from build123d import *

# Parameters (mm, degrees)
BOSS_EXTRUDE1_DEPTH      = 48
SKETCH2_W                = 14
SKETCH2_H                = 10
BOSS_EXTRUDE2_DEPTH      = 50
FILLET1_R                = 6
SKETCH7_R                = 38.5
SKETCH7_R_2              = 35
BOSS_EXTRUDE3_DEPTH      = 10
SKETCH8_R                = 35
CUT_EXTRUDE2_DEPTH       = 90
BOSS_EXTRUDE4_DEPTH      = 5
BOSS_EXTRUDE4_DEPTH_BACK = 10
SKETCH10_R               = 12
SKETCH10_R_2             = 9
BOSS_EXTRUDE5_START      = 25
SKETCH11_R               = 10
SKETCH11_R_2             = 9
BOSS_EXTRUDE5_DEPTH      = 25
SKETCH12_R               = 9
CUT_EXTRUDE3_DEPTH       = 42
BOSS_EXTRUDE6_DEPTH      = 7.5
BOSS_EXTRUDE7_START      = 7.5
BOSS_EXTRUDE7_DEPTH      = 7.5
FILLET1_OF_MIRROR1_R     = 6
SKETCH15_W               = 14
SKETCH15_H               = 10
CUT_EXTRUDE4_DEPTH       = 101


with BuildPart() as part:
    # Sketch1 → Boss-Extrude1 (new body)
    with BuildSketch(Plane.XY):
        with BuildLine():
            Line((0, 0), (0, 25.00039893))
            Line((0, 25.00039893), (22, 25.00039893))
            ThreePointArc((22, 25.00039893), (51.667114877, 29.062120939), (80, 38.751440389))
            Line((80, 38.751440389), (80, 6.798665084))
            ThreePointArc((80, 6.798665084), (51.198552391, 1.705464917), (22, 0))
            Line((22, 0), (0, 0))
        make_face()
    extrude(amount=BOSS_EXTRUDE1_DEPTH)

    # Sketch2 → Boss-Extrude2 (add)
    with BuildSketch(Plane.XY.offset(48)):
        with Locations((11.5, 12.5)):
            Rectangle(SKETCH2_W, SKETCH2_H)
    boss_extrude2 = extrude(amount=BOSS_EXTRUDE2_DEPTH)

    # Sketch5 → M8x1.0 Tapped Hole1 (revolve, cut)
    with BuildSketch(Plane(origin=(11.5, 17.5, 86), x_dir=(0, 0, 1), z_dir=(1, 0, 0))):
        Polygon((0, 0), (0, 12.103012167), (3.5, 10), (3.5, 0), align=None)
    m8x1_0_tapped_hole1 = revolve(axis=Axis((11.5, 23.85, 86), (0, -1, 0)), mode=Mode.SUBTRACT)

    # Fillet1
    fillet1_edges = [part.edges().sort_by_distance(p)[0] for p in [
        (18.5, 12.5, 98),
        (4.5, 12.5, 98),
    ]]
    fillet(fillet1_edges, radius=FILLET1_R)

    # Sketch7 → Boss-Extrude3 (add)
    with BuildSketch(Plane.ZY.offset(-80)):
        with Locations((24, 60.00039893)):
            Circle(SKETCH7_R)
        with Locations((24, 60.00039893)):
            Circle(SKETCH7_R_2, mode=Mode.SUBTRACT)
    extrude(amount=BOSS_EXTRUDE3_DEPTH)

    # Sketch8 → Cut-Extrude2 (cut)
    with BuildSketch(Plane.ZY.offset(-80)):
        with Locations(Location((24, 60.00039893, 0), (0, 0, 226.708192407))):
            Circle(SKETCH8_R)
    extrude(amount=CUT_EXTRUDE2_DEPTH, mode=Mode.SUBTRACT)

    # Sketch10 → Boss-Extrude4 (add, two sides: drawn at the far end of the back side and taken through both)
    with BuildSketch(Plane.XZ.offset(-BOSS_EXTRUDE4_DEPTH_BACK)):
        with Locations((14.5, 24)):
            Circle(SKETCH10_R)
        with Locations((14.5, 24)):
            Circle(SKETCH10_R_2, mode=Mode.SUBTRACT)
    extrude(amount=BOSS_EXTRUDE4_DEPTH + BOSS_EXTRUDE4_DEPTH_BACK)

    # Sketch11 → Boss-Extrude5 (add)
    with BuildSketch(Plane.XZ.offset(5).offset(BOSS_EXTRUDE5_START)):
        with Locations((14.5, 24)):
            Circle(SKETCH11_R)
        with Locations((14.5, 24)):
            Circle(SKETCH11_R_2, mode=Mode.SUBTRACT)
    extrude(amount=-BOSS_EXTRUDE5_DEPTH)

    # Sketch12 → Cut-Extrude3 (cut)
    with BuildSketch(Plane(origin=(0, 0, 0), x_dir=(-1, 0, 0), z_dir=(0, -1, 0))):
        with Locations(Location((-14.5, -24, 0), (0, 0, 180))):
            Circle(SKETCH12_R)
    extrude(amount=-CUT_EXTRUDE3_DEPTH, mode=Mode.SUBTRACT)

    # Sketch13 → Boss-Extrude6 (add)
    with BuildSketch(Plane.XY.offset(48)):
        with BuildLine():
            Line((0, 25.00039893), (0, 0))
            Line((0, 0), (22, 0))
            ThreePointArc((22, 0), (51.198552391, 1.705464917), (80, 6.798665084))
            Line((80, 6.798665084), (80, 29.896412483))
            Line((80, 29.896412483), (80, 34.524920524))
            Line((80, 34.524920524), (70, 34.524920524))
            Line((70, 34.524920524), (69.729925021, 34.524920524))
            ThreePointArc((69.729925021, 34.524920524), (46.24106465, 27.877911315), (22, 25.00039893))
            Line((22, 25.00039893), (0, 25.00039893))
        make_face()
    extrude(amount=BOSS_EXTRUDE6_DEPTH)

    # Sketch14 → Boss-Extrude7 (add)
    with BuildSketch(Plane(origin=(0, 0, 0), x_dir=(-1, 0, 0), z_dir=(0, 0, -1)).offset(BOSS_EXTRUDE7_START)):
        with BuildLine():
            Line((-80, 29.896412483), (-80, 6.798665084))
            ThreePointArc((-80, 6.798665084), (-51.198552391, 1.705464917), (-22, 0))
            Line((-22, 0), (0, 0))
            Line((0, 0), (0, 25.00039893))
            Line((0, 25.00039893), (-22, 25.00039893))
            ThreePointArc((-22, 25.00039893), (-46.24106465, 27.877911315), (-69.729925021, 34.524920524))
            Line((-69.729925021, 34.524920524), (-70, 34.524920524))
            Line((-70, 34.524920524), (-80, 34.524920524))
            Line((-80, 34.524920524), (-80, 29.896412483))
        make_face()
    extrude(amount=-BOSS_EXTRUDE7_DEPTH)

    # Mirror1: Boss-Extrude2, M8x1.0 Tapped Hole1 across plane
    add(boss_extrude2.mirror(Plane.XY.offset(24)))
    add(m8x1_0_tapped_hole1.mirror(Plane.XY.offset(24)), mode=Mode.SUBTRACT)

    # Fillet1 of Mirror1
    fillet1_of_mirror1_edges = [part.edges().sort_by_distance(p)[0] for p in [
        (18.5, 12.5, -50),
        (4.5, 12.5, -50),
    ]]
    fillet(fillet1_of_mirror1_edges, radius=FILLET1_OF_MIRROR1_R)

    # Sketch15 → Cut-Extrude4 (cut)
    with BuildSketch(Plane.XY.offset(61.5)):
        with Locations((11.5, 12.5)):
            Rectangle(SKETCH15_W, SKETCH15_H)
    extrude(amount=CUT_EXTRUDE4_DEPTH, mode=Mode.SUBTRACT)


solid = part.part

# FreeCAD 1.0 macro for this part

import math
import FreeCAD as App
import Part
import Sketcher
from FreeCAD import Vector
Q = App.Units.Quantity


def edges_at(feature, points):
    """Names of the edges that pass closest to the given points."""
    edges = feature.Shape.Edges
    near = lambda p: min(range(len(edges)), key=lambda i: edges[i].distToShape(Part.Vertex(*p))[0])
    return sorted({f"Edge{near(p) + 1}" for p in points})

doc = App.newDocument("Part")
params = doc.addObject("Spreadsheet::Sheet", "Params")
for row, (alias, value) in enumerate([
    ("sketch1_width", "22 mm"),
    ("pad1_length", "48 mm"),
    ("sketch2_width", "14 mm"),
    ("sketch2_height", "10 mm"),
    ("pad2_length", "50 mm"),
    ("sketch3_width", "10 mm"),
    ("sketch3_height", "3.5 mm"),
    ("groove_angle", "360 deg"),
    ("fillet_radius", "6 mm"),
    ("sketch4_diameter", "77 mm"),
    ("sketch4_diameter2", "70 mm"),
    ("pad3_length", "10 mm"),
    ("sketch5_diameter", "70 mm"),
    ("pocket1_length", "90 mm"),
    ("sketch6_diameter", "24 mm"),
    ("sketch6_diameter2", "18 mm"),
    ("pad4_length", "5 mm"),
    ("pad4_length2", "10 mm"),
    ("sketch7_diameter", "20 mm"),
    ("sketch7_diameter2", "18 mm"),
    ("pad5_length", "25 mm"),
    ("sketch8_diameter", "18 mm"),
    ("pocket2_length", "42 mm"),
    ("sketch9_width", "22 mm"),
    ("pad6_length", "7.5 mm"),
    ("sketch10_width", "22 mm"),
    ("pad7_length", "7.5 mm"),
    ("fillet2_radius", "6 mm"),
    ("sketch11_width", "14 mm"),
    ("sketch11_height", "10 mm"),
    ("pocket3_length", "101 mm"),
], start=1):
    params.set(f"A{row}", alias)
    params.set(f"B{row}", "=" + value)
    params.setAlias(f"B{row}", alias)

body = doc.addObject("PartDesign::Body", "Body")

sketch1 = doc.addObject("Sketcher::SketchObject", "Sketch")
body.addObject(sketch1)
sketch1.AttachmentSupport = (doc.XY_Plane, [""])
sketch1.MapMode = "FlatFace"
sketch1.addGeometry(Part.LineSegment(Vector(0, 25, 0), Vector(0, 0, 0)), False)
sketch1.addGeometry(Part.LineSegment(Vector(0, 0, 0), Vector(22, 0, 0)), False)
sketch1.addGeometry(Part.ArcOfCircle(Part.Circle(Vector(22, 251, 0), Vector(0, 0, 1), 251), math.radians(-90), math.radians(-76.63)), False)
sketch1.addGeometry(Part.LineSegment(Vector(80, 7, 0), Vector(80, 39, 0)), False)
sketch1.addGeometry(Part.ArcOfCircle(Part.Circle(Vector(16, 180, 0), Vector(0, 0, 1), 155), math.radians(-88), math.radians(-66)), False)
sketch1.addGeometry(Part.LineSegment(Vector(22, 25, 0), Vector(0, 25, 0)), False)
sketch1.addConstraint(Sketcher.Constraint("Coincident", 0, 2, 1, 1))
sketch1.addConstraint(Sketcher.Constraint("Tangent", 1, 2, 2, 1))
sketch1.addConstraint(Sketcher.Constraint("Coincident", 2, 2, 3, 1))
sketch1.addConstraint(Sketcher.Constraint("Coincident", 3, 2, 4, 2))
sketch1.addConstraint(Sketcher.Constraint("Coincident", 4, 1, 5, 1))
sketch1.addConstraint(Sketcher.Constraint("Coincident", 5, 2, 0, 1))
sketch1.addConstraint(Sketcher.Constraint("Vertical", 0))
sketch1.addConstraint(Sketcher.Constraint("Horizontal", 1))
sketch1.addConstraint(Sketcher.Constraint("Vertical", 3))
sketch1.addConstraint(Sketcher.Constraint("Horizontal", 5))
sketch1.addConstraint(Sketcher.Constraint("Coincident", 0, 2, -1, 1))
sketch1.addConstraint(Sketcher.Constraint("Vertical", 1, 2, 4, 1))
sketch1.addConstraint(Sketcher.Constraint("DistanceX", 1, 1, 1, 2, 22.0))
sketch1.addConstraint(Sketcher.Constraint("DistanceX", -1, 1, 2, 2, 80.0))
sketch1.addConstraint(Sketcher.Constraint("Radius", 2, 250.800841))
sketch1.addConstraint(Sketcher.Constraint("Radius", 4, 155.03067))
sketch1.addConstraint(Sketcher.Constraint("DistanceY", 0, 2, 0, 1, 25.000399))
sketch1.addConstraint(Sketcher.Constraint("DistanceY", 3, 2, 2, 3, 212.049401))
sketch1.setExpression("Constraints[12]", "Params.sketch1_width")
pad1 = doc.addObject("PartDesign::Pad", "Pad")
body.addObject(pad1)
pad1.Profile = sketch1
pad1.setExpression("Length", "Params.pad1_length")

sketch2 = doc.addObject("Sketcher::SketchObject", "Sketch001")
body.addObject(sketch2)
sketch2.AttachmentSupport = (doc.XY_Plane, [""])
sketch2.MapMode = "FlatFace"
sketch2.AttachmentOffset = App.Placement(Vector(0, 0, 48), App.Rotation())
sketch2.addGeometry(Part.LineSegment(Vector(4, 18, 0), Vector(4, 8, 0)), False)
sketch2.addGeometry(Part.LineSegment(Vector(4, 8, 0), Vector(18, 8, 0)), False)
sketch2.addGeometry(Part.LineSegment(Vector(18, 8, 0), Vector(18, 18, 0)), False)
sketch2.addGeometry(Part.LineSegment(Vector(18, 18, 0), Vector(4, 18, 0)), False)
sketch2.addConstraint(Sketcher.Constraint("Coincident", 0, 2, 1, 1))
sketch2.addConstraint(Sketcher.Constraint("Coincident", 1, 2, 2, 1))
sketch2.addConstraint(Sketcher.Constraint("Coincident", 2, 2, 3, 1))
sketch2.addConstraint(Sketcher.Constraint("Coincident", 3, 2, 0, 1))
sketch2.addConstraint(Sketcher.Constraint("Vertical", 0))
sketch2.addConstraint(Sketcher.Constraint("Horizontal", 1))
sketch2.addConstraint(Sketcher.Constraint("Vertical", 2))
sketch2.addConstraint(Sketcher.Constraint("Horizontal", 3))
sketch2.addConstraint(Sketcher.Constraint("DistanceX", 1, 1, 1, 2, 14.0))
sketch2.addConstraint(Sketcher.Constraint("DistanceY", 0, 2, 0, 1, 10.0))
sketch2.addConstraint(Sketcher.Constraint("DistanceX", -1, 1, 0, 2, 4.5))
sketch2.addConstraint(Sketcher.Constraint("DistanceY", -1, 1, 0, 2, 7.5))
sketch2.setExpression("Constraints[8]", "Params.sketch2_width")
sketch2.setExpression("Constraints[9]", "Params.sketch2_height")
pad2 = doc.addObject("PartDesign::Pad", "Pad001")
body.addObject(pad2)
pad2.Profile = sketch2
pad2.setExpression("Length", "Params.pad2_length")

sketch3 = doc.addObject("Sketcher::SketchObject", "Sketch002")
body.addObject(sketch3)
sketch3.AttachmentSupport = (doc.YZ_Plane, [""])
sketch3.MapMode = "FlatFace"
sketch3.AttachmentOffset = App.Placement(Vector(0, 0, 11.5), App.Rotation())
sketch3.addGeometry(Part.LineSegment(Vector(5.4, 86, 0), Vector(17.5, 86, 0)), False)
sketch3.addGeometry(Part.LineSegment(Vector(17.5, 86, 0), Vector(17.5, 89.5, 0)), False)
sketch3.addGeometry(Part.LineSegment(Vector(17.5, 89.5, 0), Vector(7.5, 89.5, 0)), False)
sketch3.addGeometry(Part.LineSegment(Vector(7.5, 89.5, 0), Vector(5.4, 86, 0)), False)
sketch3.addGeometry(Part.LineSegment(Vector(17.5, 86, 0), Vector(5.4, 86, 0)), True)
sketch3.addConstraint(Sketcher.Constraint("Coincident", 0, 2, 1, 1))
sketch3.addConstraint(Sketcher.Constraint("Coincident", 1, 2, 2, 1))
sketch3.addConstraint(Sketcher.Constraint("Coincident", 2, 2, 3, 1))
sketch3.addConstraint(Sketcher.Constraint("Coincident", 3, 2, 0, 1))
sketch3.addConstraint(Sketcher.Constraint("Horizontal", 0))
sketch3.addConstraint(Sketcher.Constraint("Vertical", 1))
sketch3.addConstraint(Sketcher.Constraint("Horizontal", 2))
sketch3.addConstraint(Sketcher.Constraint("Horizontal", 4))
sketch3.addConstraint(Sketcher.Constraint("Coincident", 4, 1, 0, 2))
sketch3.addConstraint(Sketcher.Constraint("Equal", 0, 4))
sketch3.addConstraint(Sketcher.Constraint("DistanceX", 2, 2, 2, 1, 10.0))
sketch3.addConstraint(Sketcher.Constraint("Angle", 3, Q("-121 deg")))
sketch3.addConstraint(Sketcher.Constraint("DistanceY", 1, 1, 1, 2, 3.5))
sketch3.addConstraint(Sketcher.Constraint("DistanceY", -1, 1, 0, 2, 86.0))
sketch3.addConstraint(Sketcher.Constraint("DistanceX", -1, 1, 0, 2, 17.5))
sketch3.setExpression("Constraints[10]", "Params.sketch3_width")
sketch3.setExpression("Constraints[12]", "Params.sketch3_height")
groove = doc.addObject("PartDesign::Groove", "Groove")
body.addObject(groove)
groove.Profile = sketch3
groove.ReferenceAxis = (sketch3, ["Axis0"])
groove.setExpression("Angle", "Params.groove_angle")
doc.recompute()

fillet = doc.addObject("PartDesign::Fillet", "Fillet")
body.addObject(fillet)
fillet.Base = (groove, edges_at(groove, [(18.5, 12.5, 98), (4.5, 12.5, 98)]))
fillet.setExpression("Radius", "Params.fillet_radius")

sketch4 = doc.addObject("Sketcher::SketchObject", "Sketch003")
body.addObject(sketch4)
sketch4.AttachmentSupport = (doc.YZ_Plane, [""])
sketch4.MapMode = "FlatFace"
sketch4.AttachmentOffset = App.Placement(Vector(0, 0, 80), App.Rotation())
sketch4.addGeometry(Part.Circle(Vector(60, 24, 0), Vector(0, 0, 1), 38), False)
sketch4.addGeometry(Part.Circle(Vector(60, 24, 0), Vector(0, 0, 1), 35), False)
sketch4.addConstraint(Sketcher.Constraint("Coincident", 1, 3, 0, 3))
sketch4.addConstraint(Sketcher.Constraint("Diameter", 0, 77.0))
sketch4.addConstraint(Sketcher.Constraint("Diameter", 1, 70.0))
sketch4.addConstraint(Sketcher.Constraint("DistanceY", -1, 1, 0, 3, 24.0))
sketch4.addConstraint(Sketcher.Constraint("DistanceX", -1, 1, 0, 3, 60.000399))
sketch4.setExpression("Constraints[1]", "Params.sketch4_diameter")
sketch4.setExpression("Constraints[2]", "Params.sketch4_diameter2")
pad3 = doc.addObject("PartDesign::Pad", "Pad002")
body.addObject(pad3)
pad3.Profile = sketch4
pad3.setExpression("Length", "Params.pad3_length")
pad3.Reversed = True

sketch5 = doc.addObject("Sketcher::SketchObject", "Sketch004")
body.addObject(sketch5)
sketch5.AttachmentSupport = (doc.YZ_Plane, [""])
sketch5.MapMode = "FlatFace"
sketch5.AttachmentOffset = App.Placement(Vector(0, 0, 80), App.Rotation())
sketch5.addGeometry(Part.Circle(Vector(60, 24, 0), Vector(0, 0, 1), 35), False)
sketch5.addConstraint(Sketcher.Constraint("Diameter", 0, 70.0))
sketch5.addConstraint(Sketcher.Constraint("DistanceY", -1, 1, 0, 3, 24.0))
sketch5.addConstraint(Sketcher.Constraint("DistanceX", -1, 1, 0, 3, 60.000399))
sketch5.setExpression("Constraints[0]", "Params.sketch5_diameter")
pocket1 = doc.addObject("PartDesign::Pocket", "Pocket")
body.addObject(pocket1)
pocket1.Profile = sketch5
pocket1.setExpression("Length", "Params.pocket1_length")

sketch6 = doc.addObject("Sketcher::SketchObject", "Sketch005")
body.addObject(sketch6)
sketch6.AttachmentSupport = (doc.XZ_Plane, [""])
sketch6.MapMode = "FlatFace"
sketch6.addGeometry(Part.Circle(Vector(14, 24, 0), Vector(0, 0, 1), 12), False)
sketch6.addGeometry(Part.Circle(Vector(14, 24, 0), Vector(0, 0, 1), 9), False)
sketch6.addConstraint(Sketcher.Constraint("Coincident", 1, 3, 0, 3))
sketch6.addConstraint(Sketcher.Constraint("Diameter", 0, 24.0))
sketch6.addConstraint(Sketcher.Constraint("Diameter", 1, 18.0))
sketch6.addConstraint(Sketcher.Constraint("DistanceY", -1, 1, 0, 3, 24.0))
sketch6.addConstraint(Sketcher.Constraint("DistanceX", -1, 1, 0, 3, 14.5))
sketch6.setExpression("Constraints[1]", "Params.sketch6_diameter")
sketch6.setExpression("Constraints[2]", "Params.sketch6_diameter2")
pad4 = doc.addObject("PartDesign::Pad", "Pad003")
body.addObject(pad4)
pad4.Profile = sketch6
pad4.Type = "TwoLengths"
pad4.setExpression("Length", "Params.pad4_length")
pad4.setExpression("Length2", "Params.pad4_length2")

sketch7 = doc.addObject("Sketcher::SketchObject", "Sketch006")
body.addObject(sketch7)
sketch7.AttachmentSupport = (doc.XZ_Plane, [""])
sketch7.MapMode = "FlatFace"
sketch7.AttachmentOffset = App.Placement(Vector(0, 0, 30), App.Rotation())
sketch7.addGeometry(Part.Circle(Vector(14, 24, 0), Vector(0, 0, 1), 10), False)
sketch7.addGeometry(Part.Circle(Vector(14, 24, 0), Vector(0, 0, 1), 9), False)
sketch7.addConstraint(Sketcher.Constraint("Coincident", 1, 3, 0, 3))
sketch7.addConstraint(Sketcher.Constraint("Diameter", 0, 20.0))
sketch7.addConstraint(Sketcher.Constraint("Diameter", 1, 18.0))
sketch7.addConstraint(Sketcher.Constraint("DistanceY", -1, 1, 0, 3, 24.0))
sketch7.addConstraint(Sketcher.Constraint("DistanceX", -1, 1, 0, 3, 14.5))
sketch7.setExpression("Constraints[1]", "Params.sketch7_diameter")
sketch7.setExpression("Constraints[2]", "Params.sketch7_diameter2")
pad5 = doc.addObject("PartDesign::Pad", "Pad004")
body.addObject(pad5)
pad5.Profile = sketch7
pad5.setExpression("Length", "Params.pad5_length")
pad5.Reversed = True

sketch8 = doc.addObject("Sketcher::SketchObject", "Sketch007")
body.addObject(sketch8)
sketch8.AttachmentSupport = (doc.XZ_Plane, [""])
sketch8.MapMode = "FlatFace"
sketch8.addGeometry(Part.Circle(Vector(14, 24, 0), Vector(0, 0, 1), 9), False)
sketch8.addConstraint(Sketcher.Constraint("Diameter", 0, 18.0))
sketch8.addConstraint(Sketcher.Constraint("DistanceY", -1, 1, 0, 3, 24.0))
sketch8.addConstraint(Sketcher.Constraint("DistanceX", -1, 1, 0, 3, 14.5))
sketch8.setExpression("Constraints[0]", "Params.sketch8_diameter")
pocket2 = doc.addObject("PartDesign::Pocket", "Pocket001")
body.addObject(pocket2)
pocket2.Profile = sketch8
pocket2.setExpression("Length", "Params.pocket2_length")

sketch9 = doc.addObject("Sketcher::SketchObject", "Sketch008")
body.addObject(sketch9)
sketch9.AttachmentSupport = (doc.XY_Plane, [""])
sketch9.MapMode = "FlatFace"
sketch9.AttachmentOffset = App.Placement(Vector(0, 0, 48), App.Rotation())
sketch9.addGeometry(Part.LineSegment(Vector(0, 25, 0), Vector(0, 0, 0)), False)
sketch9.addGeometry(Part.LineSegment(Vector(0, 0, 0), Vector(22, 0, 0)), False)
sketch9.addGeometry(Part.ArcOfCircle(Part.Circle(Vector(22, 251, 0), Vector(0, 0, 1), 251), math.radians(-90), math.radians(-76.63)), False)
sketch9.addGeometry(Part.LineSegment(Vector(80, 7, 0), Vector(80, 35, 0)), False)
sketch9.addGeometry(Part.LineSegment(Vector(80, 35, 0), Vector(70, 35, 0)), False)
sketch9.addGeometry(Part.ArcOfCircle(Part.Circle(Vector(16, 180, 0), Vector(0, 0, 1), 155), math.radians(-87.75), math.radians(-69.68)), False)
sketch9.addGeometry(Part.LineSegment(Vector(22, 25, 0), Vector(0, 25, 0)), False)
sketch9.addConstraint(Sketcher.Constraint("Coincident", 0, 2, 1, 1))
sketch9.addConstraint(Sketcher.Constraint("Tangent", 1, 2, 2, 1))
sketch9.addConstraint(Sketcher.Constraint("Coincident", 2, 2, 3, 1))
sketch9.addConstraint(Sketcher.Constraint("Coincident", 3, 2, 4, 1))
sketch9.addConstraint(Sketcher.Constraint("Coincident", 4, 2, 5, 2))
sketch9.addConstraint(Sketcher.Constraint("Coincident", 5, 1, 6, 1))
sketch9.addConstraint(Sketcher.Constraint("Coincident", 6, 2, 0, 1))
sketch9.addConstraint(Sketcher.Constraint("Vertical", 0))
sketch9.addConstraint(Sketcher.Constraint("Horizontal", 1))
sketch9.addConstraint(Sketcher.Constraint("Vertical", 3))
sketch9.addConstraint(Sketcher.Constraint("Horizontal", 4))
sketch9.addConstraint(Sketcher.Constraint("Horizontal", 6))
sketch9.addConstraint(Sketcher.Constraint("Coincident", 0, 2, -1, 1))
sketch9.addConstraint(Sketcher.Constraint("Vertical", 1, 2, 5, 1))
sketch9.addConstraint(Sketcher.Constraint("DistanceX", 1, 1, 1, 2, 22.0))
sketch9.addConstraint(Sketcher.Constraint("DistanceX", -1, 1, 2, 2, 80.0))
sketch9.addConstraint(Sketcher.Constraint("Radius", 2, 250.800841))
sketch9.addConstraint(Sketcher.Constraint("Radius", 5, 155.03067))
sketch9.addConstraint(Sketcher.Constraint("DistanceY", 0, 2, 0, 1, 25.000399))
sketch9.addConstraint(Sketcher.Constraint("DistanceX", 4, 2, 4, 1, 10.270075))
sketch9.addConstraint(Sketcher.Constraint("DistanceY", 3, 1, 3, 2, 27.726255))
sketch9.setExpression("Constraints[14]", "Params.sketch9_width")
pad6 = doc.addObject("PartDesign::Pad", "Pad005")
body.addObject(pad6)
pad6.Profile = sketch9
pad6.setExpression("Length", "Params.pad6_length")

sketch10 = doc.addObject("Sketcher::SketchObject", "Sketch009")
body.addObject(sketch10)
sketch10.AttachmentSupport = (doc.XY_Plane, [""])
sketch10.MapMode = "FlatFace"
sketch10.AttachmentOffset = App.Placement(Vector(0, 0, -7.5), App.Rotation())
sketch10.addGeometry(Part.ArcOfCircle(Part.Circle(Vector(22, 251, 0), Vector(0, 0, 1), 251), math.radians(-90), math.radians(-76.63)), False)
sketch10.addGeometry(Part.LineSegment(Vector(22, 0, 0), Vector(0, 0, 0)), False)
sketch10.addGeometry(Part.LineSegment(Vector(0, 0, 0), Vector(0, 25, 0)), False)
sketch10.addGeometry(Part.LineSegment(Vector(0, 25, 0), Vector(22, 25, 0)), False)
sketch10.addGeometry(Part.ArcOfCircle(Part.Circle(Vector(16, 180, 0), Vector(0, 0, 1), 155), math.radians(-87.75), math.radians(-69.68)), False)
sketch10.addGeometry(Part.LineSegment(Vector(70, 35, 0), Vector(80, 35, 0)), False)
sketch10.addGeometry(Part.LineSegment(Vector(80, 35, 0), Vector(80, 7, 0)), False)
sketch10.addConstraint(Sketcher.Constraint("Tangent", 0, 1, 1, 1))
sketch10.addConstraint(Sketcher.Constraint("Coincident", 1, 2, 2, 1))
sketch10.addConstraint(Sketcher.Constraint("Coincident", 2, 2, 3, 1))
sketch10.addConstraint(Sketcher.Constraint("Coincident", 3, 2, 4, 1))
sketch10.addConstraint(Sketcher.Constraint("Coincident", 4, 2, 5, 1))
sketch10.addConstraint(Sketcher.Constraint("Coincident", 5, 2, 6, 1))
sketch10.addConstraint(Sketcher.Constraint("Coincident", 6, 2, 0, 2))
sketch10.addConstraint(Sketcher.Constraint("Horizontal", 1))
sketch10.addConstraint(Sketcher.Constraint("Vertical", 2))
sketch10.addConstraint(Sketcher.Constraint("Horizontal", 3))
sketch10.addConstraint(Sketcher.Constraint("Horizontal", 5))
sketch10.addConstraint(Sketcher.Constraint("Vertical", 6))
sketch10.addConstraint(Sketcher.Constraint("Coincident", 1, 2, -1, 1))
sketch10.addConstraint(Sketcher.Constraint("Vertical", 0, 1, 3, 2))
sketch10.addConstraint(Sketcher.Constraint("DistanceX", 1, 2, 1, 1, 22.0))
sketch10.addConstraint(Sketcher.Constraint("DistanceX", -1, 1, 5, 2, 80.0))
sketch10.addConstraint(Sketcher.Constraint("Radius", 0, 250.800841))
sketch10.addConstraint(Sketcher.Constraint("Radius", 4, 155.03067))
sketch10.addConstraint(Sketcher.Constraint("DistanceY", 2, 1, 2, 2, 25.000399))
sketch10.addConstraint(Sketcher.Constraint("DistanceX", 5, 1, 5, 2, 10.270075))
sketch10.addConstraint(Sketcher.Constraint("DistanceY", 6, 2, 6, 1, 27.726255))
sketch10.setExpression("Constraints[14]", "Params.sketch10_width")
pad7 = doc.addObject("PartDesign::Pad", "Pad006")
body.addObject(pad7)
pad7.Profile = sketch10
pad7.setExpression("Length", "Params.pad7_length")
doc.recompute()

datumplane = doc.addObject("PartDesign::Plane", "DatumPlane")
body.addObject(datumplane)
datumplane.AttachmentSupport = (doc.XY_Plane, [""])
datumplane.MapMode = "FlatFace"
datumplane.AttachmentOffset = App.Placement(Vector(0, 0, 24), App.Rotation())
mirrored = doc.addObject("PartDesign::Mirrored", "Mirrored")
body.addObject(mirrored)
mirrored.Originals = [pad2, groove]
mirrored.MirrorPlane = (datumplane, [""])
body.Tip = mirrored
doc.recompute()

fillet2 = doc.addObject("PartDesign::Fillet", "Fillet001")
body.addObject(fillet2)
fillet2.Base = (mirrored, edges_at(mirrored, [(18.5, 12.5, -50), (4.5, 12.5, -50)]))
fillet2.setExpression("Radius", "Params.fillet2_radius")

sketch11 = doc.addObject("Sketcher::SketchObject", "Sketch010")
body.addObject(sketch11)
sketch11.AttachmentSupport = (doc.XY_Plane, [""])
sketch11.MapMode = "FlatFace"
sketch11.AttachmentOffset = App.Placement(Vector(0, 0, 61.5), App.Rotation())
sketch11.addGeometry(Part.LineSegment(Vector(4, 18, 0), Vector(4, 8, 0)), False)
sketch11.addGeometry(Part.LineSegment(Vector(4, 8, 0), Vector(18, 8, 0)), False)
sketch11.addGeometry(Part.LineSegment(Vector(18, 8, 0), Vector(18, 18, 0)), False)
sketch11.addGeometry(Part.LineSegment(Vector(18, 18, 0), Vector(4, 18, 0)), False)
sketch11.addConstraint(Sketcher.Constraint("Coincident", 0, 2, 1, 1))
sketch11.addConstraint(Sketcher.Constraint("Coincident", 1, 2, 2, 1))
sketch11.addConstraint(Sketcher.Constraint("Coincident", 2, 2, 3, 1))
sketch11.addConstraint(Sketcher.Constraint("Coincident", 3, 2, 0, 1))
sketch11.addConstraint(Sketcher.Constraint("Vertical", 0))
sketch11.addConstraint(Sketcher.Constraint("Horizontal", 1))
sketch11.addConstraint(Sketcher.Constraint("Vertical", 2))
sketch11.addConstraint(Sketcher.Constraint("Horizontal", 3))
sketch11.addConstraint(Sketcher.Constraint("DistanceX", 1, 1, 1, 2, 14.0))
sketch11.addConstraint(Sketcher.Constraint("DistanceY", 0, 2, 0, 1, 10.0))
sketch11.addConstraint(Sketcher.Constraint("DistanceX", -1, 1, 0, 2, 4.5))
sketch11.addConstraint(Sketcher.Constraint("DistanceY", -1, 1, 0, 2, 7.5))
sketch11.setExpression("Constraints[8]", "Params.sketch11_width")
sketch11.setExpression("Constraints[9]", "Params.sketch11_height")
pocket3 = doc.addObject("PartDesign::Pocket", "Pocket002")
body.addObject(pocket3)
pocket3.Profile = sketch11
pocket3.setExpression("Length", "Params.pocket3_length")
pocket3.Reversed = True

doc.recompute()
